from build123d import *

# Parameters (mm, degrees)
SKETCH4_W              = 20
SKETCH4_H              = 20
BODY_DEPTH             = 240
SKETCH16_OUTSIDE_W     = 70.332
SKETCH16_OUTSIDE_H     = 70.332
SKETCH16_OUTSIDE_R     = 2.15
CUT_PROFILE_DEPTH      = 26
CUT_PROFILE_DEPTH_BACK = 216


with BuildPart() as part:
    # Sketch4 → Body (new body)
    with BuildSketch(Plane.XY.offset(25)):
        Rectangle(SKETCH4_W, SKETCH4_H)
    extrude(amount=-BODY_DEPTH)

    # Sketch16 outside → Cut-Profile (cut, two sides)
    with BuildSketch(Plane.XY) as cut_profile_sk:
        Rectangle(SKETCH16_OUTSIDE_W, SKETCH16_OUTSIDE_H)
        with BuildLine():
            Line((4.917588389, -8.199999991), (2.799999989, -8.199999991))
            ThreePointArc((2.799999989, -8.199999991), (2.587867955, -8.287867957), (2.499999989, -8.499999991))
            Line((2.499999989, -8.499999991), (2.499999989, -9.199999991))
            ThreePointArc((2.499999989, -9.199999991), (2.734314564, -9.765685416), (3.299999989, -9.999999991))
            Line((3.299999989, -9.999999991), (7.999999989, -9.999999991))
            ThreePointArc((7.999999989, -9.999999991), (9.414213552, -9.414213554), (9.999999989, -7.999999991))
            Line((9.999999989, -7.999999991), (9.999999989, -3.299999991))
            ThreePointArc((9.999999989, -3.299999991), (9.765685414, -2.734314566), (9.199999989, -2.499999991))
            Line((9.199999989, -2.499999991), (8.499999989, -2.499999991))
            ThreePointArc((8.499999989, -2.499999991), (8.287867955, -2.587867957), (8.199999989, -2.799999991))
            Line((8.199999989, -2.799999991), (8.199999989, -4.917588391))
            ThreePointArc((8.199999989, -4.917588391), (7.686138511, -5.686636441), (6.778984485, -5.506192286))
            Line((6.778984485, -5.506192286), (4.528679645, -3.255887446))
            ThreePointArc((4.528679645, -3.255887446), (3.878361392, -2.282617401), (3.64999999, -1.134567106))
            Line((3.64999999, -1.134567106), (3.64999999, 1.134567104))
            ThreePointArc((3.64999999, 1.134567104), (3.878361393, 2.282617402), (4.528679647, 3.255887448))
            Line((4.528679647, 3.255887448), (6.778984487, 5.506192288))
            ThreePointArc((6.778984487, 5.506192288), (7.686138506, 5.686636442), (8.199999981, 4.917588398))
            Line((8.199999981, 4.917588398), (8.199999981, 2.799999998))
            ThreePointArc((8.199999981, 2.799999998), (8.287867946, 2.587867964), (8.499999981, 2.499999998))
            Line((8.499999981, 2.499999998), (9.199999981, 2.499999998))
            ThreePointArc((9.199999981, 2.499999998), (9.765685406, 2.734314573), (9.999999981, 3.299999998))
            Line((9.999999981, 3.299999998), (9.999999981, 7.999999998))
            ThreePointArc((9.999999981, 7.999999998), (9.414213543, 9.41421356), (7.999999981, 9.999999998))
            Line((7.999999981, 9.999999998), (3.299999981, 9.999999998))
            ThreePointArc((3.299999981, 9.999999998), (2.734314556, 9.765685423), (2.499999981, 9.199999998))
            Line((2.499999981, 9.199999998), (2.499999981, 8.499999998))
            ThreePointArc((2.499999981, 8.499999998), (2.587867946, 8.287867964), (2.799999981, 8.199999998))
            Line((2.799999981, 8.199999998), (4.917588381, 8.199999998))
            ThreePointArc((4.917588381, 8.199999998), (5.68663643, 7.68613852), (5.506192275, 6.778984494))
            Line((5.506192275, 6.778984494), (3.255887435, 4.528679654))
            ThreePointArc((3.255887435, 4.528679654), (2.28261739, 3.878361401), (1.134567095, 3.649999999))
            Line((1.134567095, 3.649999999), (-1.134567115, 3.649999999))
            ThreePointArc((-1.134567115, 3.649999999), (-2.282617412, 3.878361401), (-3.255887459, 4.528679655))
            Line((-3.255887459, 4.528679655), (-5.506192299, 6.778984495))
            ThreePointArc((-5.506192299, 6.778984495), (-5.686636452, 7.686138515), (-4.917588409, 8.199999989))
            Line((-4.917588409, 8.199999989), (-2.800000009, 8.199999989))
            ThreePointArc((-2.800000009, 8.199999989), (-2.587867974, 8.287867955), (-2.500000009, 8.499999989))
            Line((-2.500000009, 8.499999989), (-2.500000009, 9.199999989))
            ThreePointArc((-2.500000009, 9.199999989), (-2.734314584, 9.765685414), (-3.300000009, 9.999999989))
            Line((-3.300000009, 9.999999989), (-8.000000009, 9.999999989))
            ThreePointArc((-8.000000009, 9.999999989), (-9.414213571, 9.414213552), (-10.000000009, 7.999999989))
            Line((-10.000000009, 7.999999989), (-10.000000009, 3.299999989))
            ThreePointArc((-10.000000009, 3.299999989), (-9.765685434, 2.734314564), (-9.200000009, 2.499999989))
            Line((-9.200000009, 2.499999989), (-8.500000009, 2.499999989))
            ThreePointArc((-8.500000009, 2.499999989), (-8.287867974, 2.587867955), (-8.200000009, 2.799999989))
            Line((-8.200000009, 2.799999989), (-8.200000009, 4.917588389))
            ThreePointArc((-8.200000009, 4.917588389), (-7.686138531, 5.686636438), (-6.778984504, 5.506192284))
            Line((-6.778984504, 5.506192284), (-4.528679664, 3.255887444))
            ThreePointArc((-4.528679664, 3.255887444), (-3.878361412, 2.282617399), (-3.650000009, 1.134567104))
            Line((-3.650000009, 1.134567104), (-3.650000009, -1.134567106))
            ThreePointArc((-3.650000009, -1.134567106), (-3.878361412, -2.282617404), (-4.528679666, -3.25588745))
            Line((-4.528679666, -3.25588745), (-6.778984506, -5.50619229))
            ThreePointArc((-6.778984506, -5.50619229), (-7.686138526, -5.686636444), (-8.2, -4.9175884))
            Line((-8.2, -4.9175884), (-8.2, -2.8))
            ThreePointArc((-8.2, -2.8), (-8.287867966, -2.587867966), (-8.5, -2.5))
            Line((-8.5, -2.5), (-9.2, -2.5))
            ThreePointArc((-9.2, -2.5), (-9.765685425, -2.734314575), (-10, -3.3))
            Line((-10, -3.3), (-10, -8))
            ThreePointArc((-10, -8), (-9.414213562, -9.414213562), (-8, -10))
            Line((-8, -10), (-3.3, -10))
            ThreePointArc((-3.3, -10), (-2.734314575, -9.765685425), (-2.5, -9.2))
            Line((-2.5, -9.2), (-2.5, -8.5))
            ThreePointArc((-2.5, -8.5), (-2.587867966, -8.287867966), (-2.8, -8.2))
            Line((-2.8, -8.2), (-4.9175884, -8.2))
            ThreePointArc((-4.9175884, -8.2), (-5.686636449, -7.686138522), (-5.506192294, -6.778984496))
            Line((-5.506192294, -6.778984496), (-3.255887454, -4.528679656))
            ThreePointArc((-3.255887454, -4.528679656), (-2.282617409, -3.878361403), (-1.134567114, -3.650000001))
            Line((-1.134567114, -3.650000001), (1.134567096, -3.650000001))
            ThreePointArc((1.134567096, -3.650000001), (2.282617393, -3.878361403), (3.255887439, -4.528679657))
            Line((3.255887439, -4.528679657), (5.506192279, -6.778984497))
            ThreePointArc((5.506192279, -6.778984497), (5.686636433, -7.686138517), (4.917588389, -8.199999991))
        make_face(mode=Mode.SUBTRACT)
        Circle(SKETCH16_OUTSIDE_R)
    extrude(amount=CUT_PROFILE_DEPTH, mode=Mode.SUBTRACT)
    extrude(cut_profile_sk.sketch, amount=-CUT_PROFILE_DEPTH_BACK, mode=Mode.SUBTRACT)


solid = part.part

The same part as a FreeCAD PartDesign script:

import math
import FreeCAD as App
import Part
import Sketcher

V = App.Vector
Q = App.Units.Quantity

doc = App.newDocument("Part")
params = doc.addObject("Spreadsheet::Sheet", "Params")
for row, (alias, value) in enumerate([
    ("sketch1_width", "20 mm"),
    ("pad1_length", "240 mm"),
    ("sketch2_radius", "3 mm"),
    ("sketch2_radius2", "2 mm"),
    ("sketch2_diameter", "4.3 mm"),
    ("sketch2_radius3", "0.3 mm"),
    ("sketch2_radius4", "0.8 mm"),
], start=1):
    params.set(f"A{row}", alias)
    params.set(f"B{row}", "=" + value)
    params.setAlias(f"B{row}", alias)

body = doc.addObject("PartDesign::Body", "Body")

sketch1 = doc.addObject("Sketcher::SketchObject", "Sketch")
body.addObject(sketch1)
sketch1.AttachmentSupport = (doc.XY_Plane, [""])
sketch1.MapMode = "FlatFace"
sketch1.AttachmentOffset = App.Placement(V(0, 0, 25), App.Rotation())
sketch1.addGeometry([
    Part.LineSegment(V(-10, 10, 0), V(-10, -10, 0)),
    Part.LineSegment(V(-10, -10, 0), V(10, -10, 0)),
    Part.LineSegment(V(10, -10, 0), V(10, 10, 0)),
    Part.LineSegment(V(10, 10, 0), V(-10, 10, 0)),
], False)
sketch1.addConstraint([
    Sketcher.Constraint("Coincident", 0, 2, 1, 1),
    Sketcher.Constraint("Coincident", 1, 2, 2, 1),
    Sketcher.Constraint("Coincident", 2, 2, 3, 1),
    Sketcher.Constraint("Coincident", 3, 2, 0, 1),
    Sketcher.Constraint("Vertical", 0),
    Sketcher.Constraint("Horizontal", 1),
    Sketcher.Constraint("Vertical", 2),
    Sketcher.Constraint("Horizontal", 3),
    Sketcher.Constraint("Symmetric", 0, 2, 2, 2, -1, 1),
    Sketcher.Constraint("Equal", 3, 0),
    Sketcher.Constraint("DistanceX", 1, 1, 1, 2, Q("20 mm")),
])
sketch1.setExpression("Constraints[10]", "Params.sketch1_width")
pad1 = doc.addObject("PartDesign::Pad", "Pad")
body.addObject(pad1)
pad1.Profile = sketch1
pad1.setExpression("Length", "Params.pad1_length")
pad1.Reversed = True

sketch2 = doc.addObject("Sketcher::SketchObject", "Sketch001")
body.addObject(sketch2)
sketch2.AttachmentSupport = (doc.XY_Plane, [""])
sketch2.MapMode = "FlatFace"
sketch2.addGeometry([
    Part.LineSegment(V(-35.17, 35.17, 0), V(-35.17, -35.17, 0)),
    Part.LineSegment(V(-35.17, -35.17, 0), V(35.17, -35.17, 0)),
    Part.LineSegment(V(35.17, -35.17, 0), V(35.17, 35.17, 0)),
    Part.LineSegment(V(35.17, 35.17, 0), V(-35.17, 35.17, 0)),
    Part.LineSegment(V(2.8, -8.2, 0), V(4.92, -8.2, 0)),
    Part.ArcOfCircle(Part.Circle(V(4.92, -7.37, 0), V(0, 0, 1), 0.83), math.radians(-90), math.radians(45)),
    Part.LineSegment(V(5.51, -6.78, 0), V(3.26, -4.53, 0)),
    Part.ArcOfCircle(Part.Circle(V(1.13, -6.65, 0), V(0, 0, 1), 3), math.radians(45), math.radians(90)),
    Part.LineSegment(V(1.13, -3.65, 0), V(-1.13, -3.65, 0)),
    Part.ArcOfCircle(Part.Circle(V(-1.13, -6.65, 0), V(0, 0, 1), 3), math.radians(90), math.radians(135)),
    Part.LineSegment(V(-3.26, -4.53, 0), V(-5.51, -6.78, 0)),
    Part.ArcOfCircle(Part.Circle(V(-4.92, -7.37, 0), V(0, 0, 1), 0.83), math.radians(135), math.radians(270)),
    Part.LineSegment(V(-4.92, -8.2, 0), V(-2.8, -8.2, 0)),
    Part.ArcOfCircle(Part.Circle(V(-2.8, -8.5, 0), V(0, 0, 1), 0.3), math.radians(0), math.radians(90)),
    Part.LineSegment(V(-2.5, -8.5, 0), V(-2.5, -9.2, 0)),
    Part.ArcOfCircle(Part.Circle(V(-3.3, -9.2, 0), V(0, 0, 1), 0.8), math.radians(-90), math.radians(0)),
    Part.LineSegment(V(-3.3, -10, 0), V(-8, -10, 0)),
    Part.ArcOfCircle(Part.Circle(V(-8, -8, 0), V(0, 0, 1), 2), math.radians(-180), math.radians(-90)),
    Part.LineSegment(V(-10, -8, 0), V(-10, -3.3, 0)),
    Part.ArcOfCircle(Part.Circle(V(-9.2, -3.3, 0), V(0, 0, 1), 0.8), math.radians(90), math.radians(180)),
    Part.LineSegment(V(-9.2, -2.5, 0), V(-8.5, -2.5, 0)),
    Part.ArcOfCircle(Part.Circle(V(-8.5, -2.8, 0), V(0, 0, 1), 0.3), math.radians(0), math.radians(90)),
    Part.LineSegment(V(-8.2, -2.8, 0), V(-8.2, -4.92, 0)),
    Part.ArcOfCircle(Part.Circle(V(-7.37, -4.92, 0), V(0, 0, 1), 0.83), math.radians(180), math.radians(315)),
    Part.LineSegment(V(-6.78, -5.51, 0), V(-4.53, -3.26, 0)),
    Part.ArcOfCircle(Part.Circle(V(-6.65, -1.13, 0), V(0, 0, 1), 3), math.radians(-45), math.radians(0)),
    Part.LineSegment(V(-3.65, -1.13, 0), V(-3.65, 1.13, 0)),
    Part.ArcOfCircle(Part.Circle(V(-6.65, 1.13, 0), V(0, 0, 1), 3), math.radians(0), math.radians(45)),
    Part.LineSegment(V(-4.53, 3.26, 0), V(-6.78, 5.51, 0)),
    Part.ArcOfCircle(Part.Circle(V(-7.37, 4.92, 0), V(0, 0, 1), 0.83), math.radians(45), math.radians(180)),
    Part.LineSegment(V(-8.2, 4.92, 0), V(-8.2, 2.8, 0)),
    Part.ArcOfCircle(Part.Circle(V(-8.5, 2.8, 0), V(0, 0, 1), 0.3), math.radians(-90), math.radians(0)),
    Part.LineSegment(V(-8.5, 2.5, 0), V(-9.2, 2.5, 0)),
    Part.ArcOfCircle(Part.Circle(V(-9.2, 3.3, 0), V(0, 0, 1), 0.8), math.radians(180), math.radians(270)),
    Part.LineSegment(V(-10, 3.3, 0), V(-10, 8, 0)),
    Part.ArcOfCircle(Part.Circle(V(-8, 8, 0), V(0, 0, 1), 2), math.radians(90), math.radians(180)),
    Part.LineSegment(V(-8, 10, 0), V(-3.3, 10, 0)),
    Part.ArcOfCircle(Part.Circle(V(-3.3, 9.2, 0), V(0, 0, 1), 0.8), math.radians(0), math.radians(90)),
    Part.LineSegment(V(-2.5, 9.2, 0), V(-2.5, 8.5, 0)),
    Part.ArcOfCircle(Part.Circle(V(-2.8, 8.5, 0), V(0, 0, 1), 0.3), math.radians(-90), math.radians(0)),
    Part.LineSegment(V(-2.8, 8.2, 0), V(-4.92, 8.2, 0)),
    Part.ArcOfCircle(Part.Circle(V(-4.92, 7.37, 0), V(0, 0, 1), 0.83), math.radians(90), math.radians(225)),
    Part.LineSegment(V(-5.51, 6.78, 0), V(-3.26, 4.53, 0)),
    Part.ArcOfCircle(Part.Circle(V(-1.13, 6.65, 0), V(0, 0, 1), 3), math.radians(-135), math.radians(-90)),
    Part.LineSegment(V(-1.13, 3.65, 0), V(1.13, 3.65, 0)),
    Part.ArcOfCircle(Part.Circle(V(1.13, 6.65, 0), V(0, 0, 1), 3), math.radians(-90), math.radians(-45)),
    Part.LineSegment(V(3.26, 4.53, 0), V(5.51, 6.78, 0)),
    Part.ArcOfCircle(Part.Circle(V(4.92, 7.37, 0), V(0, 0, 1), 0.83), math.radians(-45), math.radians(90)),
    Part.LineSegment(V(4.92, 8.2, 0), V(2.8, 8.2, 0)),
    Part.ArcOfCircle(Part.Circle(V(2.8, 8.5, 0), V(0, 0, 1), 0.3), math.radians(180), math.radians(270)),
    Part.LineSegment(V(2.5, 8.5, 0), V(2.5, 9.2, 0)),
    Part.ArcOfCircle(Part.Circle(V(3.3, 9.2, 0), V(0, 0, 1), 0.8), math.radians(90), math.radians(180)),
    Part.LineSegment(V(3.3, 10, 0), V(8, 10, 0)),
    Part.ArcOfCircle(Part.Circle(V(8, 8, 0), V(0, 0, 1), 2), math.radians(0), math.radians(90)),
    Part.LineSegment(V(10, 8, 0), V(10, 3.3, 0)),
    Part.ArcOfCircle(Part.Circle(V(9.2, 3.3, 0), V(0, 0, 1), 0.8), math.radians(-90), math.radians(0)),
    Part.LineSegment(V(9.2, 2.5, 0), V(8.5, 2.5, 0)),
    Part.ArcOfCircle(Part.Circle(V(8.5, 2.8, 0), V(0, 0, 1), 0.3), math.radians(180), math.radians(270)),
    Part.LineSegment(V(8.2, 2.8, 0), V(8.2, 4.92, 0)),
    Part.ArcOfCircle(Part.Circle(V(7.37, 4.92, 0), V(0, 0, 1), 0.83), math.radians(0), math.radians(135)),
    Part.LineSegment(V(6.78, 5.51, 0), V(4.53, 3.26, 0)),
    Part.ArcOfCircle(Part.Circle(V(6.65, 1.13, 0), V(0, 0, 1), 3), math.radians(135), math.radians(180)),
    Part.LineSegment(V(3.65, 1.13, 0), V(3.65, -1.13, 0)),
    Part.ArcOfCircle(Part.Circle(V(6.65, -1.13, 0), V(0, 0, 1), 3), math.radians(180), math.radians(225)),
    Part.LineSegment(V(4.53, -3.26, 0), V(6.78, -5.51, 0)),
    Part.ArcOfCircle(Part.Circle(V(7.37, -4.92, 0), V(0, 0, 1), 0.83), math.radians(-135), math.radians(0)),
    Part.LineSegment(V(8.2, -4.92, 0), V(8.2, -2.8, 0)),
    Part.ArcOfCircle(Part.Circle(V(8.5, -2.8, 0), V(0, 0, 1), 0.3), math.radians(90), math.radians(180)),
    Part.LineSegment(V(8.5, -2.5, 0), V(9.2, -2.5, 0)),
    Part.ArcOfCircle(Part.Circle(V(9.2, -3.3, 0), V(0, 0, 1), 0.8), math.radians(0), math.radians(90)),
    Part.LineSegment(V(10, -3.3, 0), V(10, -8, 0)),
    Part.ArcOfCircle(Part.Circle(V(8, -8, 0), V(0, 0, 1), 2), math.radians(-90), math.radians(0)),
    Part.LineSegment(V(8, -10, 0), V(3.3, -10, 0)),
    Part.ArcOfCircle(Part.Circle(V(3.3, -9.2, 0), V(0, 0, 1), 0.8), math.radians(180), math.radians(270)),
    Part.LineSegment(V(2.5, -9.2, 0), V(2.5, -8.5, 0)),
    Part.ArcOfCircle(Part.Circle(V(2.8, -8.5, 0), V(0, 0, 1), 0.3), math.radians(90), math.radians(180)),
    Part.Circle(V(0, 0, 0), V(0, 0, 1), 2.15),
], False)
sketch2.addConstraint([
    Sketcher.Constraint("Coincident", 0, 2, 1, 1),
    Sketcher.Constraint("Coincident", 1, 2, 2, 1),
    Sketcher.Constraint("Coincident", 2, 2, 3, 1),
    Sketcher.Constraint("Coincident", 3, 2, 0, 1),
    Sketcher.Constraint("Tangent", 4, 2, 5, 1),
    Sketcher.Constraint("Tangent", 5, 2, 6, 1),
    Sketcher.Constraint("Tangent", 6, 2, 7, 1),
    Sketcher.Constraint("Tangent", 7, 2, 8, 1),
    Sketcher.Constraint("Tangent", 8, 2, 9, 1),
    Sketcher.Constraint("Tangent", 9, 2, 10, 1),
    Sketcher.Constraint("Tangent", 10, 2, 11, 1),
    Sketcher.Constraint("Tangent", 11, 2, 12, 1),
    Sketcher.Constraint("Tangent", 12, 2, 13, 2),
    Sketcher.Constraint("Tangent", 13, 1, 14, 1),
    Sketcher.Constraint("Tangent", 14, 2, 15, 2),
    Sketcher.Constraint("Tangent", 15, 1, 16, 1),
    Sketcher.Constraint("Tangent", 16, 2, 17, 2),
    Sketcher.Constraint("Tangent", 17, 1, 18, 1),
    Sketcher.Constraint("Tangent", 18, 2, 19, 2),
    Sketcher.Constraint("Tangent", 19, 1, 20, 1),
    Sketcher.Constraint("Tangent", 20, 2, 21, 2),
    Sketcher.Constraint("Tangent", 21, 1, 22, 1),
    Sketcher.Constraint("Tangent", 22, 2, 23, 1),
    Sketcher.Constraint("Tangent", 23, 2, 24, 1),
    Sketcher.Constraint("Tangent", 24, 2, 25, 1),
    Sketcher.Constraint("Tangent", 25, 2, 26, 1),
    Sketcher.Constraint("Tangent", 26, 2, 27, 1),
    Sketcher.Constraint("Tangent", 27, 2, 28, 1),
    Sketcher.Constraint("Tangent", 28, 2, 29, 1),
    Sketcher.Constraint("Tangent", 29, 2, 30, 1),
    Sketcher.Constraint("Tangent", 30, 2, 31, 2),
    Sketcher.Constraint("Tangent", 31, 1, 32, 1),
    Sketcher.Constraint("Tangent", 32, 2, 33, 2),
    Sketcher.Constraint("Tangent", 33, 1, 34, 1),
    Sketcher.Constraint("Tangent", 34, 2, 35, 2),
    Sketcher.Constraint("Tangent", 35, 1, 36, 1),
    Sketcher.Constraint("Tangent", 36, 2, 37, 2),
    Sketcher.Constraint("Tangent", 37, 1, 38, 1),
    Sketcher.Constraint("Tangent", 38, 2, 39, 2),
    Sketcher.Constraint("Tangent", 39, 1, 40, 1),
    Sketcher.Constraint("Tangent", 40, 2, 41, 1),
    Sketcher.Constraint("Tangent", 41, 2, 42, 1),
    Sketcher.Constraint("Tangent", 42, 2, 43, 1),
    Sketcher.Constraint("Tangent", 43, 2, 44, 1),
    Sketcher.Constraint("Tangent", 44, 2, 45, 1),
    Sketcher.Constraint("Tangent", 45, 2, 46, 1),
    Sketcher.Constraint("Tangent", 46, 2, 47, 1),
    Sketcher.Constraint("Tangent", 47, 2, 48, 1),
    Sketcher.Constraint("Tangent", 48, 2, 49, 2),
    Sketcher.Constraint("Tangent", 49, 1, 50, 1),
    Sketcher.Constraint("Tangent", 50, 2, 51, 2),
    Sketcher.Constraint("Tangent", 51, 1, 52, 1),
    Sketcher.Constraint("Tangent", 52, 2, 53, 2),
    Sketcher.Constraint("Tangent", 53, 1, 54, 1),
    Sketcher.Constraint("Tangent", 54, 2, 55, 2),
    Sketcher.Constraint("Tangent", 55, 1, 56, 1),
    Sketcher.Constraint("Tangent", 56, 2, 57, 2),
    Sketcher.Constraint("Tangent", 57, 1, 58, 1),
    Sketcher.Constraint("Tangent", 58, 2, 59, 1),
    Sketcher.Constraint("Tangent", 59, 2, 60, 1),
    Sketcher.Constraint("Tangent", 60, 2, 61, 1),
    Sketcher.Constraint("Tangent", 61, 2, 62, 1),
    Sketcher.Constraint("Tangent", 62, 2, 63, 1),
    Sketcher.Constraint("Tangent", 63, 2, 64, 1),
    Sketcher.Constraint("Tangent", 64, 2, 65, 1),
    Sketcher.Constraint("Tangent", 65, 2, 66, 1),
    Sketcher.Constraint("Tangent", 66, 2, 67, 2),
    Sketcher.Constraint("Tangent", 67, 1, 68, 1),
    Sketcher.Constraint("Tangent", 68, 2, 69, 2),
    Sketcher.Constraint("Tangent", 69, 1, 70, 1),
    Sketcher.Constraint("Tangent", 70, 2, 71, 2),
    Sketcher.Constraint("Tangent", 71, 1, 72, 1),
    Sketcher.Constraint("Tangent", 72, 2, 73, 2),
    Sketcher.Constraint("Tangent", 73, 1, 74, 1),
    Sketcher.Constraint("Tangent", 74, 2, 75, 2),
    Sketcher.Constraint("Tangent", 75, 1, 4, 1),
    Sketcher.Constraint("Vertical", 0),
    Sketcher.Constraint("Horizontal", 1),
    Sketcher.Constraint("Vertical", 2),
    Sketcher.Constraint("Horizontal", 3),
    Sketcher.Constraint("Horizontal", 4),
    Sketcher.Constraint("Horizontal", 8),
    Sketcher.Constraint("Horizontal", 12),
    Sketcher.Constraint("Vertical", 14),
    Sketcher.Constraint("Horizontal", 16),
    Sketcher.Constraint("Vertical", 18),
    Sketcher.Constraint("Horizontal", 20),
    Sketcher.Constraint("Vertical", 22),
    Sketcher.Constraint("Vertical", 26),
    Sketcher.Constraint("Vertical", 30),
    Sketcher.Constraint("Horizontal", 32),
    Sketcher.Constraint("Vertical", 34),
    Sketcher.Constraint("Horizontal", 36),
    Sketcher.Constraint("Vertical", 38),
    Sketcher.Constraint("Horizontal", 40),
    Sketcher.Constraint("Horizontal", 44),
    Sketcher.Constraint("Horizontal", 48),
    Sketcher.Constraint("Vertical", 50),
    Sketcher.Constraint("Horizontal", 52),
    Sketcher.Constraint("Vertical", 54),
    Sketcher.Constraint("Horizontal", 56),
    Sketcher.Constraint("Vertical", 58),
    Sketcher.Constraint("Vertical", 62),
    Sketcher.Constraint("Vertical", 66),
    Sketcher.Constraint("Horizontal", 68),
    Sketcher.Constraint("Vertical", 70),
    Sketcher.Constraint("Horizontal", 72),
    Sketcher.Constraint("Vertical", 74),
    Sketcher.Constraint("Coincident", 76, 3, -1, 1),
    Sketcher.Constraint("Equal", 7, 9),
    Sketcher.Constraint("Equal", 5, 11),
    Sketcher.Constraint("Equal", 15, 19),
    Sketcher.Constraint("Equal", 13, 21),
    Sketcher.Constraint("Equal", 11, 23),
    Sketcher.Constraint("Equal", 9, 25),
    Sketcher.Constraint("Equal", 25, 27),
    Sketcher.Constraint("Equal", 23, 29),
    Sketcher.Constraint("Equal", 21, 31),
    Sketcher.Constraint("Equal", 19, 33),
    Sketcher.Constraint("Equal", 17, 35),
    Sketcher.Constraint("Equal", 33, 37),
    Sketcher.Constraint("Equal", 31, 39),
    Sketcher.Constraint("Equal", 29, 41),
    Sketcher.Constraint("Equal", 27, 43),
    Sketcher.Constraint("Equal", 43, 45),
    Sketcher.Constraint("Equal", 41, 47),
    Sketcher.Constraint("Equal", 39, 49),
    Sketcher.Constraint("Equal", 37, 51),
    Sketcher.Constraint("Equal", 35, 53),
    Sketcher.Constraint("Equal", 51, 55),
    Sketcher.Constraint("Equal", 49, 57),
    Sketcher.Constraint("Equal", 47, 59),
    Sketcher.Constraint("Equal", 45, 61),
    Sketcher.Constraint("Equal", 61, 63),
    Sketcher.Constraint("Equal", 59, 65),
    Sketcher.Constraint("Equal", 57, 67),
    Sketcher.Constraint("Equal", 55, 69),
    Sketcher.Constraint("Equal", 53, 71),
    Sketcher.Constraint("Equal", 69, 73),
    Sketcher.Constraint("Equal", 67, 75),
    Sketcher.Constraint("Symmetric", 5, 3, 41, 3, -1, 1),
    Sketcher.Constraint("Symmetric", 7, 3, 43, 3, -1, 1),
    Sketcher.Constraint("Symmetric", 11, 3, 47, 3, -1, 1),
    Sketcher.Constraint("Symmetric", 15, 3, 51, 3, -1, 1),
    Sketcher.Constraint("Symmetric", 19, 3, 55, 3, -1, 1),
    Sketcher.Constraint("Symmetric", 23, 3, 59, 3, -1, 1),
    Sketcher.Constraint("Symmetric", 25, 3, 61, 3, -1, 1),
    Sketcher.Constraint("Symmetric", 29, 3, 65, 3, -1, 1),
    Sketcher.Constraint("Symmetric", 33, 3, 69, 3, -1, 1),
    Sketcher.Constraint("Symmetric", 37, 3, 73, 3, -1, 1),
    Sketcher.Constraint("Symmetric", 0, 2, 2, 2, -1, 1),
    Sketcher.Constraint("Symmetric", 5, 3, 11, 3, -2),
    Sketcher.Constraint("Symmetric", 37, 3, 51, 3, -2),
    Sketcher.Constraint("Symmetric", 33, 3, 55, 3, -2),
    Sketcher.Constraint("Symmetric", 29, 3, 59, 3, -2),
    Sketcher.Constraint("Perpendicular", 6, 10),
    Sketcher.Constraint("Parallel", 10, 24),
    Sketcher.Constraint("Perpendicular", 24, 28),
    Sketcher.Constraint("Perpendicular", 42, 46),
    Sketcher.Constraint("Perpendicular", 60, 64),
    Sketcher.Constraint("Horizontal", 27, 3, 61, 3),
    Sketcher.Constraint("Equal", 3, 0),
    Sketcher.Constraint("Equal", 68, 14),
    Sketcher.Constraint("Equal", 72, 18),
    Sketcher.Constraint("Equal", 48, 22),
    Sketcher.Constraint("Equal", 44, 26),
    Sketcher.Constraint("Equal", 10, 24),
    Sketcher.Constraint("Radius", 7, Q("3 mm")),
    Sketcher.Constraint("Radius", 17, Q("2 mm")),
    Sketcher.Constraint("Diameter", 76, Q("4.3 mm")),
    Sketcher.Constraint("Radius", 13, Q("0.3 mm")),
    Sketcher.Constraint("Radius", 15, Q("0.8 mm")),
    Sketcher.Constraint("DistanceX", 16, 2, 16, 1, Q("4.7 mm")),
    Sketcher.Constraint("DistanceX", 20, 1, 20, 2, Q("0.7 mm")),
    Sketcher.Constraint("DistanceX", 17, 3, -1, 1, Q("8 mm")),
    Sketcher.Constraint("DistanceX", 1, 1, 1, 2, Q("70.332 mm")),
    Sketcher.Constraint("DistanceY", 7, 3, -1, 1, Q("6.65 mm")),
    Sketcher.Constraint("Radius", 5, Q("0.832412 mm")),
    Sketcher.Constraint("DistanceX", 4, 1, 4, 2, Q("2.117588 mm")),
])
sketch2.setExpression("Constraints[167]", "Params.sketch2_radius")
sketch2.setExpression("Constraints[168]", "Params.sketch2_radius2")
sketch2.setExpression("Constraints[169]", "Params.sketch2_diameter")
sketch2.setExpression("Constraints[170]", "Params.sketch2_radius3")
sketch2.setExpression("Constraints[171]", "Params.sketch2_radius4")
pocket1 = doc.addObject("PartDesign::Pocket", "Pocket")
body.addObject(pocket1)
pocket1.Profile = sketch2
pocket1.Type = "ThroughAll"
pocket1.Midplane = True

doc.recompute()
